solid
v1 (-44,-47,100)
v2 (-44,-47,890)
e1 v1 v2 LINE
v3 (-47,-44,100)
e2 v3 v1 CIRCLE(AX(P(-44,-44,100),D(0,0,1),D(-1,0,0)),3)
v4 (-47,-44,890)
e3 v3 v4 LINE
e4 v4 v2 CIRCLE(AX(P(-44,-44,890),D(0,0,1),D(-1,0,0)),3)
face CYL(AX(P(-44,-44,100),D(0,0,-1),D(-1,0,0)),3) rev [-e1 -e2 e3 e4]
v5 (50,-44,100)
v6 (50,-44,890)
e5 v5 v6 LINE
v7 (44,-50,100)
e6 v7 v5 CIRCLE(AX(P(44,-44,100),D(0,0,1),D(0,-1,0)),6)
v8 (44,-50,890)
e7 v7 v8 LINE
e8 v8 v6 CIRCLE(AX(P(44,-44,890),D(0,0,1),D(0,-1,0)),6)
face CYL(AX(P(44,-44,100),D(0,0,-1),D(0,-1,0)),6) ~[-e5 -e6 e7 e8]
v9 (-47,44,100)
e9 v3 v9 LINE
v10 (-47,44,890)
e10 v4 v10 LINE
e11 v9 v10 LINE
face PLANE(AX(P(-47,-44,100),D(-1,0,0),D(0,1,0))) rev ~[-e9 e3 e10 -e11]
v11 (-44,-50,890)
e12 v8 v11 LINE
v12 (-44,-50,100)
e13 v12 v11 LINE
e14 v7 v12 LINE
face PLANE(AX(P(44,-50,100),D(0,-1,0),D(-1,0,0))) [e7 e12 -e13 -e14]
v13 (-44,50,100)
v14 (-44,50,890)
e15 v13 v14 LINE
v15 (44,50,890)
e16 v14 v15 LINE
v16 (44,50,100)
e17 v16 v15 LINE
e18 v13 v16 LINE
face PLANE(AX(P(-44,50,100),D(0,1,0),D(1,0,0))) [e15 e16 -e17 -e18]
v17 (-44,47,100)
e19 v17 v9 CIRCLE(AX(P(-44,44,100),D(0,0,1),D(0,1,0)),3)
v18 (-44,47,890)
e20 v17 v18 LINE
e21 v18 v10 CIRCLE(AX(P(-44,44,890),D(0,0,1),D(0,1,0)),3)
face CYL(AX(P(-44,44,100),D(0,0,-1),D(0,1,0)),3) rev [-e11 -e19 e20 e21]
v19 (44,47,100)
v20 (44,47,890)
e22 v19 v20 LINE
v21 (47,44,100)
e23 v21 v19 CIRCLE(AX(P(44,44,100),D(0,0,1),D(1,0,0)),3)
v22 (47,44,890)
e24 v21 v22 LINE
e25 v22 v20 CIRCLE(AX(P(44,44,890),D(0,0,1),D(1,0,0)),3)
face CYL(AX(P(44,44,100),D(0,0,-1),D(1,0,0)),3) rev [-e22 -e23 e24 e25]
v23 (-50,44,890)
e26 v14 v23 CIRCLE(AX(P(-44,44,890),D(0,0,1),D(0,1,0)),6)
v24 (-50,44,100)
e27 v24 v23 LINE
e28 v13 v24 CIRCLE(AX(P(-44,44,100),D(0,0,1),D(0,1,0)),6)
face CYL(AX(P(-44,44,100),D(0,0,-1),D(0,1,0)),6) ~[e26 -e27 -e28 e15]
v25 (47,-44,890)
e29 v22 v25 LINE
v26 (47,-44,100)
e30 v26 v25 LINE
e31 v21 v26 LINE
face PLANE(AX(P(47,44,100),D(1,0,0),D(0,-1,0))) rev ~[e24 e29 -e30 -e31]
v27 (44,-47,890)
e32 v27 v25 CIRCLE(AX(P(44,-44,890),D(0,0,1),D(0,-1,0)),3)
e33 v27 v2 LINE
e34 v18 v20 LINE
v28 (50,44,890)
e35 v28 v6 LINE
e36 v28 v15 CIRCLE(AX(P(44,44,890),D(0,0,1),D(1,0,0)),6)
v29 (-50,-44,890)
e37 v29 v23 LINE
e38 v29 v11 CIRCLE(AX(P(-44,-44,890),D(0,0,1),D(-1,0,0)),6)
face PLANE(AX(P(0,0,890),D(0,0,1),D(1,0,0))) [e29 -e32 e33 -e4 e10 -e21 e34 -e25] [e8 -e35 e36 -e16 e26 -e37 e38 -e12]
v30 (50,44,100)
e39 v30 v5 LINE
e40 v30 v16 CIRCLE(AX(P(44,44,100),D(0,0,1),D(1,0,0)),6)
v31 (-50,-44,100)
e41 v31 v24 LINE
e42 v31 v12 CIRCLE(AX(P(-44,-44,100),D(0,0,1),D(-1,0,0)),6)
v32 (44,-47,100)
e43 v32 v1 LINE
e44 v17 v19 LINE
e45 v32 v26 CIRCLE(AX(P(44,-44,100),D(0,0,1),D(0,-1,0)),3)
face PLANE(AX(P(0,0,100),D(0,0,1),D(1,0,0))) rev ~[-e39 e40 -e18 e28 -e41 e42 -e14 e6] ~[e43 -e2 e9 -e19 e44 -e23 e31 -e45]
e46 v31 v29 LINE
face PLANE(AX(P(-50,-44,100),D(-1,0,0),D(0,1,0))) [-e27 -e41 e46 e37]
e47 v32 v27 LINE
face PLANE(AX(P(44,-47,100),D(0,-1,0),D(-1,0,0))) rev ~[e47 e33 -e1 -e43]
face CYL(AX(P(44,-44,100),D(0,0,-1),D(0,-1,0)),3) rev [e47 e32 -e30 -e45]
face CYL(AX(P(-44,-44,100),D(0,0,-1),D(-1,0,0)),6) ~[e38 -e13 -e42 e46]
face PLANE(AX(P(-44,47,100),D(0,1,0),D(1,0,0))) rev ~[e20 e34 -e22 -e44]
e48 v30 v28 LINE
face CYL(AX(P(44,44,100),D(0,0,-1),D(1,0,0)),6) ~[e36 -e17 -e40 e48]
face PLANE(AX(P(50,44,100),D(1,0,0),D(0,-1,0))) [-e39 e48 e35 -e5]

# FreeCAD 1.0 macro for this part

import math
import FreeCAD as App
import Part
import Sketcher
from FreeCAD import Vector

doc = App.newDocument("Part")
body = doc.addObject("PartDesign::Body", "Body")

# Sketch on XY plane
sketch1 = body.newObject("Sketcher::SketchObject", "Sketch")
sketch1.AttachmentSupport = (doc.getObject("XY_Plane"), [""])
sketch1.MapMode = "FlatFace"
sketch1.AttachmentOffset = App.Placement(Vector(0, 0, 100), App.Rotation())
sketch1.addGeometry([
    Part.LineSegment(Vector(-50, 44, 0), Vector(-50, -44, 0)),  # 0
    Part.ArcOfCircle(Part.Circle(Vector(-44, -44, 0), Vector(0, 0, 1), 6), math.radians(180), math.radians(270)),  # 1
    Part.LineSegment(Vector(-44, -50, 0), Vector(44, -50, 0)),  # 2
    Part.ArcOfCircle(Part.Circle(Vector(44, -44, 0), Vector(0, 0, 1), 6), math.radians(-90), math.radians(0)),  # 3
    Part.LineSegment(Vector(50, -44, 0), Vector(50, 44, 0)),  # 4
    Part.ArcOfCircle(Part.Circle(Vector(44, 44, 0), Vector(0, 0, 1), 6), math.radians(0), math.radians(90)),  # 5
    Part.LineSegment(Vector(44, 50, 0), Vector(-44, 50, 0)),  # 6
    Part.ArcOfCircle(Part.Circle(Vector(-44, 44, 0), Vector(0, 0, 1), 6), math.radians(90), math.radians(180)),  # 7
    Part.ArcOfCircle(Part.Circle(Vector(-44, 44, 0), Vector(0, 0, 1), 3), math.radians(90), math.radians(180)),  # 8
    Part.LineSegment(Vector(-44, 47, 0), Vector(44, 47, 0)),  # 9
    Part.ArcOfCircle(Part.Circle(Vector(44, 44, 0), Vector(0, 0, 1), 3), math.radians(0), math.radians(90)),  # 10
    Part.LineSegment(Vector(47, 44, 0), Vector(47, -44, 0)),  # 11
    Part.ArcOfCircle(Part.Circle(Vector(44, -44, 0), Vector(0, 0, 1), 3), math.radians(-90), math.radians(0)),  # 12
    Part.LineSegment(Vector(44, -47, 0), Vector(-44, -47, 0)),  # 13
    Part.ArcOfCircle(Part.Circle(Vector(-44, -44, 0), Vector(0, 0, 1), 3), math.radians(180), math.radians(270)),  # 14
    Part.LineSegment(Vector(-47, -44, 0), Vector(-47, 44, 0)),  # 15
], False)
sketch1.addConstraint([
    Sketcher.Constraint("Tangent", 0, 2, 1, 1),
    Sketcher.Constraint("Tangent", 1, 2, 2, 1),
    Sketcher.Constraint("Tangent", 2, 2, 3, 1),
    Sketcher.Constraint("Tangent", 3, 2, 4, 1),
    Sketcher.Constraint("Tangent", 4, 2, 5, 1),
    Sketcher.Constraint("Tangent", 5, 2, 6, 1),
    Sketcher.Constraint("Tangent", 6, 2, 7, 1),
    Sketcher.Constraint("Tangent", 7, 2, 0, 1),
    Sketcher.Constraint("Tangent", 8, 1, 9, 1),
    Sketcher.Constraint("Tangent", 9, 2, 10, 2),
    Sketcher.Constraint("Tangent", 10, 1, 11, 1),
    Sketcher.Constraint("Tangent", 11, 2, 12, 2),
    Sketcher.Constraint("Tangent", 12, 1, 13, 1),
    Sketcher.Constraint("Tangent", 13, 2, 14, 2),
    Sketcher.Constraint("Tangent", 14, 1, 15, 1),
    Sketcher.Constraint("Tangent", 15, 2, 8, 2),
    Sketcher.Constraint("Vertical", 0),
    Sketcher.Constraint("Horizontal", 2),
    Sketcher.Constraint("Vertical", 4),
    Sketcher.Constraint("Horizontal", 6),
    Sketcher.Constraint("Horizontal", 9),
    Sketcher.Constraint("Vertical", 11),
    Sketcher.Constraint("Horizontal", 13),
    Sketcher.Constraint("Vertical", 15),
    Sketcher.Constraint("Coincident", 8, 3, 7, 3),
    Sketcher.Constraint("Coincident", 10, 3, 5, 3),
    Sketcher.Constraint("Coincident", 12, 3, 3, 3),
    Sketcher.Constraint("Equal", 1, 3),
    Sketcher.Constraint("Equal", 3, 5),
    Sketcher.Constraint("Equal", 5, 7),
    Sketcher.Constraint("Equal", 12, 14),
    Sketcher.Constraint("Symmetric", 1, 3, 5, 3, -1, 1),
    Sketcher.Constraint("Equal", 13, 0),
    Sketcher.Constraint("Radius", 1, 6.0),
    Sketcher.Constraint("Radius", 8, 3.0),
    Sketcher.Constraint("DistanceX", 0, 2, -1, 1, 50.0),
])
pad1 = body.newObject("PartDesign::Pad", "Pad")
pad1.Profile = sketch1
pad1.Length = 790

doc.recompute()
